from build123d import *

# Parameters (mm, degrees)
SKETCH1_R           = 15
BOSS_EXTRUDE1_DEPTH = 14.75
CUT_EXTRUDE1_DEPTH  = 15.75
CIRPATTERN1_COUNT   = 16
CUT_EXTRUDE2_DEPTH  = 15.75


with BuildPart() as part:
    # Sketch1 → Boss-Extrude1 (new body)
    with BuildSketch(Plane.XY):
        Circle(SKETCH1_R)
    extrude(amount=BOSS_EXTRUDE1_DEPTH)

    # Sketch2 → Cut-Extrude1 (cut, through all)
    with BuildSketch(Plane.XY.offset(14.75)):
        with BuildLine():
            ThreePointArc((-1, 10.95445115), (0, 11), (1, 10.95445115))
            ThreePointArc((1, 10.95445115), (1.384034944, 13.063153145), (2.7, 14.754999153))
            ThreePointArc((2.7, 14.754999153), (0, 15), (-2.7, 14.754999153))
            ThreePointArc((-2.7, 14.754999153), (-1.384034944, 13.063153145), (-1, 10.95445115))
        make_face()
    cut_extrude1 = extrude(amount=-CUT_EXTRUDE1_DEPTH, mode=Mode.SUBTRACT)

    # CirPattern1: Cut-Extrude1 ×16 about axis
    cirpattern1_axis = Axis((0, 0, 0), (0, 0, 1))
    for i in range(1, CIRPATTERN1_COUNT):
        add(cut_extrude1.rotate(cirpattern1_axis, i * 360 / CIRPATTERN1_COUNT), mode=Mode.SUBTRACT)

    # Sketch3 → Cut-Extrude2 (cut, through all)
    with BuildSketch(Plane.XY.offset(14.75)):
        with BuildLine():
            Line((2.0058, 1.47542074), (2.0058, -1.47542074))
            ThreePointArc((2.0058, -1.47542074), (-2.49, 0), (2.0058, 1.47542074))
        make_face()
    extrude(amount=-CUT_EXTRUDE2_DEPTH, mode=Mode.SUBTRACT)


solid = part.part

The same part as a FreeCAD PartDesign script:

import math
import FreeCAD as App
import Part
import Sketcher
from FreeCAD import Vector

doc = App.newDocument("Part")
body = doc.addObject("PartDesign::Body", "Body")

sketch1 = body.newObject("Sketcher::SketchObject", "Sketch")
sketch1.AttachmentSupport = (doc.getObject("XY_Plane"), [""])
sketch1.MapMode = "FlatFace"
sketch1.addGeometry(Part.Circle(Vector(0, 0, 0), Vector(0, 0, 1), 15), False)
sketch1.addConstraint(Sketcher.Constraint("Coincident", 0, 3, -1, 1))
sketch1.addConstraint(Sketcher.Constraint("Diameter", 0, 30.0))
pad1 = body.newObject("PartDesign::Pad", "Pad")
pad1.Profile = sketch1
pad1.Length = 14.75

sketch2 = body.newObject("Sketcher::SketchObject", "Sketch001")
sketch2.AttachmentSupport = (doc.getObject("XY_Plane"), [""])
sketch2.MapMode = "FlatFace"
sketch2.AttachmentOffset = App.Placement(Vector(0, 0, 14.75), App.Rotation())
sketch2.addGeometry(Part.ArcOfCircle(Part.Circle(Vector(0, 0, 0), Vector(0, 0, 1), 11), math.radians(84.78), math.radians(95.22)), False)
sketch2.addGeometry(Part.ArcOfCircle(Part.Circle(Vector(5.5, 11.2, 0), Vector(0, 0, 1), 4.5), math.radians(128), math.radians(183)), False)
sketch2.addGeometry(Part.ArcOfCircle(Part.Circle(Vector(0, 0, 0), Vector(0, 0, 1), 15), math.radians(80), math.radians(100)), False)
sketch2.addGeometry(Part.ArcOfCircle(Part.Circle(Vector(-5.5, 11.2, 0), Vector(0, 0, 1), 4.5), math.radians(-3), math.radians(52)), False)
sketch2.addConstraint(Sketcher.Constraint("Coincident", 0, 1, 1, 2))
sketch2.addConstraint(Sketcher.Constraint("Coincident", 1, 1, 2, 1))
sketch2.addConstraint(Sketcher.Constraint("Coincident", 2, 2, 3, 2))
sketch2.addConstraint(Sketcher.Constraint("Coincident", 3, 1, 0, 2))
sketch2.addConstraint(Sketcher.Constraint("Coincident", 0, 3, -1, 1))
sketch2.addConstraint(Sketcher.Constraint("Coincident", 2, 3, -1, 1))
sketch2.addConstraint(Sketcher.Constraint("Equal", 1, 3))
sketch2.addConstraint(Sketcher.Constraint("Symmetric", 1, 3, 3, 3, -2))
sketch2.addConstraint(Sketcher.Constraint("Radius", 0, 11.0))
sketch2.addConstraint(Sketcher.Constraint("Radius", 2, 15.0))
sketch2.addConstraint(Sketcher.Constraint("Radius", 1, 4.5))
sketch2.addConstraint(Sketcher.Constraint("DistanceX", -1, 1, 0, 1, 1.0))
sketch2.addConstraint(Sketcher.Constraint("DistanceX", -1, 1, 1, 1, 2.7))
pocket1 = body.newObject("PartDesign::Pocket", "Pocket")
pocket1.Profile = sketch2
pocket1.Type = "ThroughAll"
doc.recompute()

polarpattern = body.newObject("PartDesign::PolarPattern", "PolarPattern")
polarpattern.Originals = [pocket1]
polarpattern.Axis = (doc.getObject("Z_Axis"), [""])
polarpattern.Angle = 360
polarpattern.Occurrences = 16
body.Tip = polarpattern

sketch3 = body.newObject("Sketcher::SketchObject", "Sketch002")
sketch3.AttachmentSupport = (doc.getObject("XY_Plane"), [""])
sketch3.MapMode = "FlatFace"
sketch3.AttachmentOffset = App.Placement(Vector(0, 0, 14.75), App.Rotation())
sketch3.addGeometry(Part.LineSegment(Vector(2, -1.5, 0), Vector(2, 1.5, 0)), False)
sketch3.addGeometry(Part.ArcOfCircle(Part.Circle(Vector(0, 0, 0), Vector(0, 0, 1), 2.5), math.radians(36), math.radians(324)), False)
sketch3.addConstraint(Sketcher.Constraint("Coincident", 0, 1, 1, 2))
sketch3.addConstraint(Sketcher.Constraint("Coincident", 1, 1, 0, 2))
sketch3.addConstraint(Sketcher.Constraint("Vertical", 0))
sketch3.addConstraint(Sketcher.Constraint("Coincident", 1, 3, -1, 1))
sketch3.addConstraint(Sketcher.Constraint("Radius", 1, 2.49))
sketch3.addConstraint(Sketcher.Constraint("DistanceY", 0, 1, 0, 2, 2.950841))
pocket2 = body.newObject("PartDesign::Pocket", "Pocket001")
pocket2.Profile = sketch3
pocket2.Type = "ThroughAll"

doc.recompute()
